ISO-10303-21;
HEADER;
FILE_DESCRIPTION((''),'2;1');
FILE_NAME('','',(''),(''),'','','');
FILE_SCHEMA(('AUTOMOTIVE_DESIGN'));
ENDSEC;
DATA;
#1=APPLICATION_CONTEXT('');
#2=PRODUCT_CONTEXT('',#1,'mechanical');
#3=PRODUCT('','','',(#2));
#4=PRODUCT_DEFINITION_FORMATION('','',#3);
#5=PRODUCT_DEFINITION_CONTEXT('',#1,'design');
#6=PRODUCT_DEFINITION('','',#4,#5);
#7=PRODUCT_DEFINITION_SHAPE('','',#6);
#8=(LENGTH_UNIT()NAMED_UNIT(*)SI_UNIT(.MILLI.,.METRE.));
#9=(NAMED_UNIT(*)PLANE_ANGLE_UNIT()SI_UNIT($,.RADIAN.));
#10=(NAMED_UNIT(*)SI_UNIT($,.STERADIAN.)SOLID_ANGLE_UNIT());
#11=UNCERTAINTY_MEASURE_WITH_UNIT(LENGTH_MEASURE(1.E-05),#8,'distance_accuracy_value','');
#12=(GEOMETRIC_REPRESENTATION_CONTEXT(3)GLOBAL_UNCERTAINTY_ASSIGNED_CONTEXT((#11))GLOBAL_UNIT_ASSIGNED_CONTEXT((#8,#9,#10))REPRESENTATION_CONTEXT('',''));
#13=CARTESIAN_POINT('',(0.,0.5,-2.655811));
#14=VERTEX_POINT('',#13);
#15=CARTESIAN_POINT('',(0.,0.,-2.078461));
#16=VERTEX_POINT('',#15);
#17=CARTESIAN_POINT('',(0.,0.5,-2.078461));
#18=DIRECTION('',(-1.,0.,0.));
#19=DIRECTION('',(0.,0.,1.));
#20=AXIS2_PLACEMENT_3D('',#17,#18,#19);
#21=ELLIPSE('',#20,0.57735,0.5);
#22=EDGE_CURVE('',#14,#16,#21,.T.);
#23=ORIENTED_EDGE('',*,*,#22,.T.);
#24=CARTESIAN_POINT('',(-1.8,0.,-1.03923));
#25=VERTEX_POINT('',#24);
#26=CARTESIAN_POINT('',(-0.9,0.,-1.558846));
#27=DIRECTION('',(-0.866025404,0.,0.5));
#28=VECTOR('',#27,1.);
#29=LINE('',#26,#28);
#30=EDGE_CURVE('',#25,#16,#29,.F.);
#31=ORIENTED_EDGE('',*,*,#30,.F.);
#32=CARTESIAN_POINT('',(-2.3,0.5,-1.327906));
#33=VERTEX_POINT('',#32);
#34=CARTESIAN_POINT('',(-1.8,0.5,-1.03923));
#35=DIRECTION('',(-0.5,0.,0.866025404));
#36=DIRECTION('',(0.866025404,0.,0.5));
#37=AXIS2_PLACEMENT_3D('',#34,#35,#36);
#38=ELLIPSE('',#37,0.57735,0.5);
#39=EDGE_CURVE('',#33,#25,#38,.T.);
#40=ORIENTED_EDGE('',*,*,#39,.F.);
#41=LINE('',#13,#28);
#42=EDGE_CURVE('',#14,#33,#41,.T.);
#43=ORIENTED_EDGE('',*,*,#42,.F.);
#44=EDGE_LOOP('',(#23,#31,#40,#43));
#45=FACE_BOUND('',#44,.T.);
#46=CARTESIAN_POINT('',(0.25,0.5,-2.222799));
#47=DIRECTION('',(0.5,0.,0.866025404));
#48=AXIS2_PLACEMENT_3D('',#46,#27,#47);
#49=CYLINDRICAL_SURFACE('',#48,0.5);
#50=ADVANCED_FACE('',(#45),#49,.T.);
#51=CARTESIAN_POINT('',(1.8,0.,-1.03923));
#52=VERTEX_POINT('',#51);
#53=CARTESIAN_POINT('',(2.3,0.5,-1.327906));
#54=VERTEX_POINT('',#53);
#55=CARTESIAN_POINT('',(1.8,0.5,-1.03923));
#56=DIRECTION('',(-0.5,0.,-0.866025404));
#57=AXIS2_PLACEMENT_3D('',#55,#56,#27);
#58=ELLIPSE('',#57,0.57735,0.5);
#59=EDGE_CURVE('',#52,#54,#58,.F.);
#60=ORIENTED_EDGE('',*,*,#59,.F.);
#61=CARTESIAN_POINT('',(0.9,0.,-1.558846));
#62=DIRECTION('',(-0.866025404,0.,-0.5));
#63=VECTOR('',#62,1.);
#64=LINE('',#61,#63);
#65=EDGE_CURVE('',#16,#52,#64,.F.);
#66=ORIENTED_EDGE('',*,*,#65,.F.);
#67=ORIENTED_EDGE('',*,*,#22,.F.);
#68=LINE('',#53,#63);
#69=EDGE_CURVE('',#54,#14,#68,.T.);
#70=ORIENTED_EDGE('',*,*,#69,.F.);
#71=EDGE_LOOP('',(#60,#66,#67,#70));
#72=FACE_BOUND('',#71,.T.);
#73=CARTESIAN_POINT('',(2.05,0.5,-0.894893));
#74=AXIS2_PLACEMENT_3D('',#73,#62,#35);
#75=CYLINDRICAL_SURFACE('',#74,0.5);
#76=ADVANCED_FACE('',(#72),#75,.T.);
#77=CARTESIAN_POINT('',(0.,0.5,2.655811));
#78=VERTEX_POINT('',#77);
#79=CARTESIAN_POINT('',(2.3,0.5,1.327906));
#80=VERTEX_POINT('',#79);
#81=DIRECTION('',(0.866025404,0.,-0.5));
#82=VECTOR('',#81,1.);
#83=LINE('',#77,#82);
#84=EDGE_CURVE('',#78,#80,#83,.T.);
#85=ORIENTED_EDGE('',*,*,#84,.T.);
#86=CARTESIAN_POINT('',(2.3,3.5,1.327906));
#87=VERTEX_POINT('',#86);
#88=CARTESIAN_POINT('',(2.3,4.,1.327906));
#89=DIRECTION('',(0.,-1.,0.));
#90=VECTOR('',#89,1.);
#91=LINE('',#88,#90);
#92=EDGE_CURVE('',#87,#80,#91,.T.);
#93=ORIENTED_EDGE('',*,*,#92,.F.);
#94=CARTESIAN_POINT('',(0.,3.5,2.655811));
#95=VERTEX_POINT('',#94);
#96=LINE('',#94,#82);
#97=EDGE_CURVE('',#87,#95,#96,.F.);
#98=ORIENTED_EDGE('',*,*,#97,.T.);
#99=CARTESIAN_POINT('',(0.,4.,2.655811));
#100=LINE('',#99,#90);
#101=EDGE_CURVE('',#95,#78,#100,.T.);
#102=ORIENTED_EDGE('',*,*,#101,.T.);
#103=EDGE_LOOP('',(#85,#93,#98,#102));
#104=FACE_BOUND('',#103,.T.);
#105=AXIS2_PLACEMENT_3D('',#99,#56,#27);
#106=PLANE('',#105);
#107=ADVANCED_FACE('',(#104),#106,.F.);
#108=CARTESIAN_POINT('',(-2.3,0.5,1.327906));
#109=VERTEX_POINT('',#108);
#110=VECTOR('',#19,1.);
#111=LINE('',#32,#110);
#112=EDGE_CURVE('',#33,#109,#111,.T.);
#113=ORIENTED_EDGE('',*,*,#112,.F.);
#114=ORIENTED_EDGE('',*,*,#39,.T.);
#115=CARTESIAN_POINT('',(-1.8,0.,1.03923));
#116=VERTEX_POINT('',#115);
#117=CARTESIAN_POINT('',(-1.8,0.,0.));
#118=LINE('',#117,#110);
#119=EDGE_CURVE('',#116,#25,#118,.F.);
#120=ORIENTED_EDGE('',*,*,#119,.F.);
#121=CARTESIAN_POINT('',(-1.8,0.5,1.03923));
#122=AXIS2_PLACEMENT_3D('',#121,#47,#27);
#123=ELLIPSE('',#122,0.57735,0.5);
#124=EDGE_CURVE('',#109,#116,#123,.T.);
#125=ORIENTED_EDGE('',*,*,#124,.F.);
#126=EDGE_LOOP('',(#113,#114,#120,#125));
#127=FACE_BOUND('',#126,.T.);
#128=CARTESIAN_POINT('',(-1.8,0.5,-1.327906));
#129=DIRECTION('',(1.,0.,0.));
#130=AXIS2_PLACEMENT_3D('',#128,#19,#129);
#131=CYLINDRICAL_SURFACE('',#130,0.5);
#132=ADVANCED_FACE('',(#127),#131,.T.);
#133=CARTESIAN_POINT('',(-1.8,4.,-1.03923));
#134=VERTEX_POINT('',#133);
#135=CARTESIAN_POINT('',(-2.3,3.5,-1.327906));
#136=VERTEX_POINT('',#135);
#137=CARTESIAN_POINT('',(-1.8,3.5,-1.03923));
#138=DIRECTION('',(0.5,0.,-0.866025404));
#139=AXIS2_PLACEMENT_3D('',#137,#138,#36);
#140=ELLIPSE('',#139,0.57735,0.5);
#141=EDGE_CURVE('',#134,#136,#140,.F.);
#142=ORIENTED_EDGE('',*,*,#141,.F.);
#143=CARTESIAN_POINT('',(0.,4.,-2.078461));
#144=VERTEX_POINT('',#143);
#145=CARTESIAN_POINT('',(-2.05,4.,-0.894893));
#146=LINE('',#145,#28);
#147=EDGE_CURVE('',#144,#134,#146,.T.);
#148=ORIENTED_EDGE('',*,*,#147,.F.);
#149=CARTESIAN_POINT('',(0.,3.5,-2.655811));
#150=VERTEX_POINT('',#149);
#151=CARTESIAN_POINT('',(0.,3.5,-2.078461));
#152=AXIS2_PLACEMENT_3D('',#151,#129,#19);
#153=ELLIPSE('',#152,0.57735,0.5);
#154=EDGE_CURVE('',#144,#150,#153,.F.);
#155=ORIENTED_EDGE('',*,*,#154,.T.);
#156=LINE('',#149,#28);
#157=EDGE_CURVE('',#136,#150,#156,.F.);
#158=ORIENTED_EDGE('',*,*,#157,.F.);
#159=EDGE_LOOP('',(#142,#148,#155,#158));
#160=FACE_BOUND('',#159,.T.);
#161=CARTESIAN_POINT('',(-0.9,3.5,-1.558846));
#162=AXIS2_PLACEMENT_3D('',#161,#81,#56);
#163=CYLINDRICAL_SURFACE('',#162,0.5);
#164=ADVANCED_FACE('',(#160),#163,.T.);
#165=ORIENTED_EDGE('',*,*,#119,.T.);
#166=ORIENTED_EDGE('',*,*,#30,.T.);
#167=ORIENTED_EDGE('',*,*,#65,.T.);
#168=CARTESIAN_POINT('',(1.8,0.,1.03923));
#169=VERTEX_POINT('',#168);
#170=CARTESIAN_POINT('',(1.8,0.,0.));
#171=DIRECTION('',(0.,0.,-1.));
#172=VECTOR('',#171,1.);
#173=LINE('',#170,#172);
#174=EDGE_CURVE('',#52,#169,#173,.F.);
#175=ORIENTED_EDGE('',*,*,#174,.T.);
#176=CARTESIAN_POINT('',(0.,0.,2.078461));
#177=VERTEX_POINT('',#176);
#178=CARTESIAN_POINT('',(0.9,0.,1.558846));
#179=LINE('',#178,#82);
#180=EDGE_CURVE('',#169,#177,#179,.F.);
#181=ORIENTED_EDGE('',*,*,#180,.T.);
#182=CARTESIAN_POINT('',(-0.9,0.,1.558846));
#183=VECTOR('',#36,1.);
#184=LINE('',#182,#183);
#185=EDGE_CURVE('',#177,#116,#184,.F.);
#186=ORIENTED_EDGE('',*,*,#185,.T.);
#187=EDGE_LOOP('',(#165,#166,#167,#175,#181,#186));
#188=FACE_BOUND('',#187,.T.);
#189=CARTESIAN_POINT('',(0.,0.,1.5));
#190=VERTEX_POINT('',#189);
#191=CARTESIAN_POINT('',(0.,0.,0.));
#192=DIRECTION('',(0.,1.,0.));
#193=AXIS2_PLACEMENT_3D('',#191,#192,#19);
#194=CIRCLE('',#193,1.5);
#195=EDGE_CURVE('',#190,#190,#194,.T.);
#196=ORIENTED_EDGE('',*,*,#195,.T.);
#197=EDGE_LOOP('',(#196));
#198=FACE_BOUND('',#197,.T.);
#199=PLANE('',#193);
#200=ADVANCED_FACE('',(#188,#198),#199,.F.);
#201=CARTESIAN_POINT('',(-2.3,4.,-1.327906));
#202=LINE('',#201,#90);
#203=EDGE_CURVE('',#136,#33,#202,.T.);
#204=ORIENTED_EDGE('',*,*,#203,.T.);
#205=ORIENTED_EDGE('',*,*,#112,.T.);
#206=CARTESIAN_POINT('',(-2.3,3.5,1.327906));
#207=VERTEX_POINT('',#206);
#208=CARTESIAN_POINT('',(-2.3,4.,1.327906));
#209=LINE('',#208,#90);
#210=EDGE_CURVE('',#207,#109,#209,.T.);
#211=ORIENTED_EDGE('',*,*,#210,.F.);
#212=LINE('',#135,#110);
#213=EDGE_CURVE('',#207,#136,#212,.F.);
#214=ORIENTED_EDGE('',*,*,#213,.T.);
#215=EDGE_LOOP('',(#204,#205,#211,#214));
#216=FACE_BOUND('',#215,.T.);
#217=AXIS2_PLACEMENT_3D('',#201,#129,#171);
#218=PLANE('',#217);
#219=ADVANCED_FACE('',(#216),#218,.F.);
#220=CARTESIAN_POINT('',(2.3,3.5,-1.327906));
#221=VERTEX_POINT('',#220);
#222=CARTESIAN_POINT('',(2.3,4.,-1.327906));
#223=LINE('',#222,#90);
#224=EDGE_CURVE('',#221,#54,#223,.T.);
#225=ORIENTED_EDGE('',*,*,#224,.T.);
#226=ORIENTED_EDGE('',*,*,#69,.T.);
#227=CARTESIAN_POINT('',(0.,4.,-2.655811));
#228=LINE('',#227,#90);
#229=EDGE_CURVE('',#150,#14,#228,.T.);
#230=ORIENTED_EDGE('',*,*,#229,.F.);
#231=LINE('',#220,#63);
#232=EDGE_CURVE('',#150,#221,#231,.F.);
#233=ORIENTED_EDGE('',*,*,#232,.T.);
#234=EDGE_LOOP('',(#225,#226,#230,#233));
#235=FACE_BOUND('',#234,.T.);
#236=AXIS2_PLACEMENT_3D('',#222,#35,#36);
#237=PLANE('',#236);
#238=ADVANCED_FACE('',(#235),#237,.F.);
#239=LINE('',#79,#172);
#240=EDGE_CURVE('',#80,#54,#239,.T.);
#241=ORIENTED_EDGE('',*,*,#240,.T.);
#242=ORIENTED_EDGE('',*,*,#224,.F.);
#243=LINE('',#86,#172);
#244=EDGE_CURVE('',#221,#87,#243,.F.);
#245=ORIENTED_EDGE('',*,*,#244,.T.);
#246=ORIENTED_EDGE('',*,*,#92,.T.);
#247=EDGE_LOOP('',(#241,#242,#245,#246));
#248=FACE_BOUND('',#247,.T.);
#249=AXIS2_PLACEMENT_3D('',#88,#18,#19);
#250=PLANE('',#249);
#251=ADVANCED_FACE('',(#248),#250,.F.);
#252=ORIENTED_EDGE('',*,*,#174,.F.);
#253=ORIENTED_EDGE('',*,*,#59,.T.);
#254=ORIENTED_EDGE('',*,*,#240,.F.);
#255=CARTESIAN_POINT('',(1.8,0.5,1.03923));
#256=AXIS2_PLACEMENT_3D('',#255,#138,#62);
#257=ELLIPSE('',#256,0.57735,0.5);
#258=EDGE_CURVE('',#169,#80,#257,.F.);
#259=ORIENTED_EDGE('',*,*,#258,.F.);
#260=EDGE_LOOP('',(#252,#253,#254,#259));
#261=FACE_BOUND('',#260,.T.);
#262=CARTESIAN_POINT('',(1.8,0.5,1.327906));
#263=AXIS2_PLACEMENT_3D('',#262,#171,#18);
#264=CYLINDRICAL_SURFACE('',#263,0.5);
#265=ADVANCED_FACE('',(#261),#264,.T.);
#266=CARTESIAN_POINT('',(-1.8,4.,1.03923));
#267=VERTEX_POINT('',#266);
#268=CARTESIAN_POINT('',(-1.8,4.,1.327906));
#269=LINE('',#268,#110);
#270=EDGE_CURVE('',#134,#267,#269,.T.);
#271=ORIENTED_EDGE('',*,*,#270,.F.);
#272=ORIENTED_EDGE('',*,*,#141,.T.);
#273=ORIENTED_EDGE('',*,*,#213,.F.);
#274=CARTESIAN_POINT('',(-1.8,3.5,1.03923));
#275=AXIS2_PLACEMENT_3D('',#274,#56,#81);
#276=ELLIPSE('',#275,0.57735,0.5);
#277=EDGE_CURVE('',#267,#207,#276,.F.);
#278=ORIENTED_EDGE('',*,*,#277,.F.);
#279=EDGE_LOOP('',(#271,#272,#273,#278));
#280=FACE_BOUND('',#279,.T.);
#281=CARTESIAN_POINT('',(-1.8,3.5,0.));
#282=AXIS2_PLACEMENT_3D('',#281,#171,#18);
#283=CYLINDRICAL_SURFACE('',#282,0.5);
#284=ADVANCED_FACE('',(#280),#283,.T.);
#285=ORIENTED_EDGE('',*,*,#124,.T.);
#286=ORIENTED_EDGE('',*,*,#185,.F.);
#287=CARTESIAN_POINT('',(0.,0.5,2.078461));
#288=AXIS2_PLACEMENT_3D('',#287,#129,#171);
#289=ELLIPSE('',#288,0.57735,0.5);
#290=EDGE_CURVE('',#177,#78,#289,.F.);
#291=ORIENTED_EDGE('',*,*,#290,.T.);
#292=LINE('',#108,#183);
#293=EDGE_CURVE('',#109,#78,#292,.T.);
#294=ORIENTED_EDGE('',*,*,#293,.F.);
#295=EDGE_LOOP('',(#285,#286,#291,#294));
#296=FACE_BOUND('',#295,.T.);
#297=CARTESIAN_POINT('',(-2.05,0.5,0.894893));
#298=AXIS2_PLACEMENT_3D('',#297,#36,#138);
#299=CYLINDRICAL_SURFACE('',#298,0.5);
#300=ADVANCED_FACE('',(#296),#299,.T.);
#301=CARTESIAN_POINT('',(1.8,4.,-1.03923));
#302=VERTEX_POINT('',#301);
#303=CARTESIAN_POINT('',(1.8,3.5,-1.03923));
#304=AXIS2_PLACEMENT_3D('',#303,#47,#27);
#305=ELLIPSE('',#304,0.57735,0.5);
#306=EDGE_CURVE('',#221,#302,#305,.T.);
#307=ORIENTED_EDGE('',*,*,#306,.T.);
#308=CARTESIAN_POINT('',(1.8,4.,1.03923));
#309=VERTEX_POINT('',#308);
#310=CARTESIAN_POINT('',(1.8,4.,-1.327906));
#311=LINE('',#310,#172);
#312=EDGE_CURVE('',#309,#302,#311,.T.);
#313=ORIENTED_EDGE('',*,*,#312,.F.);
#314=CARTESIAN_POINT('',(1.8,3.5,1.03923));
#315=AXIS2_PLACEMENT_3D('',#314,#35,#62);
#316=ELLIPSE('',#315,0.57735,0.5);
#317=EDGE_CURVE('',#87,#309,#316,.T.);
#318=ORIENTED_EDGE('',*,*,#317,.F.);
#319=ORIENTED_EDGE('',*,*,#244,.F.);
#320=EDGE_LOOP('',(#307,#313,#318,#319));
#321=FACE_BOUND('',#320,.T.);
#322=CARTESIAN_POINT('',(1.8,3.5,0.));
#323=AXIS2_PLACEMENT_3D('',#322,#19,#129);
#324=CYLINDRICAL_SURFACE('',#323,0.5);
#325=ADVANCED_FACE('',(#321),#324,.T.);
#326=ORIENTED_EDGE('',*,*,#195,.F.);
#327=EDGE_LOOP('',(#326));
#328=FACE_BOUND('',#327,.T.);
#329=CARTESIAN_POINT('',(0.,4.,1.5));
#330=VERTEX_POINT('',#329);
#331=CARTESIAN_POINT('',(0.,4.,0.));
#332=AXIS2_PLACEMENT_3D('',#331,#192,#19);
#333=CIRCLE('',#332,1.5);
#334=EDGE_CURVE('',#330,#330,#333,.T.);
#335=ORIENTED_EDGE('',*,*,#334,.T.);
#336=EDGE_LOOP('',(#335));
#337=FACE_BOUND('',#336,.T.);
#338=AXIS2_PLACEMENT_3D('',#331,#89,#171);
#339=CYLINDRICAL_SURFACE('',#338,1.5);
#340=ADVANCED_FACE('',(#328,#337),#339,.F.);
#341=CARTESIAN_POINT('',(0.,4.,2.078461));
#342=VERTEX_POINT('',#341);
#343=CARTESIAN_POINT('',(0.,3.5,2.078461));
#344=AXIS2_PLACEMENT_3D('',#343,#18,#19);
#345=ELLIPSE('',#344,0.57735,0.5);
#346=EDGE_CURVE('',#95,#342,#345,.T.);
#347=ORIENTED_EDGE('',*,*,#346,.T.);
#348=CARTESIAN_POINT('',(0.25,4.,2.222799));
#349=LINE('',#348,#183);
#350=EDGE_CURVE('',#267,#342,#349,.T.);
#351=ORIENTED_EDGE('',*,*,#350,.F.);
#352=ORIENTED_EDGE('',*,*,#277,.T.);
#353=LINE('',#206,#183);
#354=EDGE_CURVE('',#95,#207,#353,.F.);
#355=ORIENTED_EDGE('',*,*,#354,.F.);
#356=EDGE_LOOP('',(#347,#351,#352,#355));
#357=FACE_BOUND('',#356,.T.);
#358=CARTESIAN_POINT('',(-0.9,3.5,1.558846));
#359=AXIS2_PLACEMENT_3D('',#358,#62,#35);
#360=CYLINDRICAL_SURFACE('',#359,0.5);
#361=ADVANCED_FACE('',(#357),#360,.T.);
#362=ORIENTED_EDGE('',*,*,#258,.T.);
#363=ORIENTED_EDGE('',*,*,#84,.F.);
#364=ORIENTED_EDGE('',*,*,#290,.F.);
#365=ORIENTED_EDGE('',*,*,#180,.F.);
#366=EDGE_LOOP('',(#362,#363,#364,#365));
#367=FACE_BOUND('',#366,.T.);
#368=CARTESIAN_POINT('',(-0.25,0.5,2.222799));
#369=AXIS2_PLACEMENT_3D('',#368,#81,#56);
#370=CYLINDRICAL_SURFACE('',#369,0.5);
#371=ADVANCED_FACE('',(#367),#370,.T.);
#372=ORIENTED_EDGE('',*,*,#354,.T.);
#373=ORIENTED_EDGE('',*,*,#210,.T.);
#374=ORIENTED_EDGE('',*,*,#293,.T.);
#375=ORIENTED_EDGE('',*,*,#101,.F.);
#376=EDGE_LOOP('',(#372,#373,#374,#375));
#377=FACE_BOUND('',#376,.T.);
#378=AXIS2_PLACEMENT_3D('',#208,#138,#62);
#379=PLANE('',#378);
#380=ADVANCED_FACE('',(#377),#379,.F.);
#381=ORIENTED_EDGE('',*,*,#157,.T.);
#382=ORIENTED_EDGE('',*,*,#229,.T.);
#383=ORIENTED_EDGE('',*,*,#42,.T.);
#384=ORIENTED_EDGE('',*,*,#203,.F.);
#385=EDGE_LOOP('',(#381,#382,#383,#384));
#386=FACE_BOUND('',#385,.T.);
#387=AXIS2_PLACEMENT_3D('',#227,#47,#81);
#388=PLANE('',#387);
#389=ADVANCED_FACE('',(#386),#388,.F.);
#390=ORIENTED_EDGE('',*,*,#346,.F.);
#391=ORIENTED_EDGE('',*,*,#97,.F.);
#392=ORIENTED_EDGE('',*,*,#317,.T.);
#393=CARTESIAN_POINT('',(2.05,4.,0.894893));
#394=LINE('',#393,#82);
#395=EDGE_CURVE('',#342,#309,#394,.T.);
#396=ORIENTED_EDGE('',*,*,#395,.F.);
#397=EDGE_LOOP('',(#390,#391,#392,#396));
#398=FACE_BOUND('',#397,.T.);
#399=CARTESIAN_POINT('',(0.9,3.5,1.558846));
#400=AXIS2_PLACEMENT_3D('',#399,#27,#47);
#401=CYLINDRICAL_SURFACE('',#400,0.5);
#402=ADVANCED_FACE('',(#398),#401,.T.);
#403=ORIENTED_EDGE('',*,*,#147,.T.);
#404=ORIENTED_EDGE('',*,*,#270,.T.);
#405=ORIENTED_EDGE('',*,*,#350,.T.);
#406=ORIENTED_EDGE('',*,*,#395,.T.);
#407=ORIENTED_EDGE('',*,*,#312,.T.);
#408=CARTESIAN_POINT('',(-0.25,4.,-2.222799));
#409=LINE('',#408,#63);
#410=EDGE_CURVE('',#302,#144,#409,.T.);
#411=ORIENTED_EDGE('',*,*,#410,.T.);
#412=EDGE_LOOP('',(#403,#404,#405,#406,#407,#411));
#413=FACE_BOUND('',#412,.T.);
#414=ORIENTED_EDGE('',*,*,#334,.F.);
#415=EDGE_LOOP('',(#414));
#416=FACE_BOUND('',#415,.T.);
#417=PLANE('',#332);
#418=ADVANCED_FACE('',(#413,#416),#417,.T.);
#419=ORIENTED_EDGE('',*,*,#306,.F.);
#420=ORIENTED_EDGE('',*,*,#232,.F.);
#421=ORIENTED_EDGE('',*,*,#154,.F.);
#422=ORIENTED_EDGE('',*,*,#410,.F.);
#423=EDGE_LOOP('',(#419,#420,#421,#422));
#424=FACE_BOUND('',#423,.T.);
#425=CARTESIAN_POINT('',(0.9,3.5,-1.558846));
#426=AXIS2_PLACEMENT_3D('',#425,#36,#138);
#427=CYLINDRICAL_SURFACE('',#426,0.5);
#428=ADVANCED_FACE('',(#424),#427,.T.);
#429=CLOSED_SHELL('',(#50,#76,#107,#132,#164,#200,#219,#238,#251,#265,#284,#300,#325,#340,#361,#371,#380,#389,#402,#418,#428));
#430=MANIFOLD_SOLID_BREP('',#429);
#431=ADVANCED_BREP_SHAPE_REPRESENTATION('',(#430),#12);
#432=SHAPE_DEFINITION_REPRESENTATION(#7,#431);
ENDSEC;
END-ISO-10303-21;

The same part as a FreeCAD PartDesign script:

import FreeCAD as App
import Part
import Sketcher
Q = App.Units.Quantity


def edges_at(feature, points):
    """Names of the edges that pass closest to the given points."""
    edges = feature.Shape.Edges
    near = lambda p: min(range(len(edges)), key=lambda i: edges[i].distToShape(Part.Vertex(*p))[0])
    return sorted({f"Edge{near(p) + 1}" for p in points})


def add_polygon(sketch, points):
    """Adds a closed chain of lines whose ends are joined by coincident constraints."""
    first, n = sketch.GeometryCount, len(points)
    for a, b in zip(points, points[1:] + points[:1]):
        sketch.addGeometry(Part.LineSegment(App.Vector(*a, 0), App.Vector(*b, 0)), False)
    for i in range(n):
        sketch.addConstraint(Sketcher.Constraint("Coincident", first + i, 2, first + (i + 1) % n, 1))

doc = App.newDocument("Part")
body = doc.addObject("PartDesign::Body", "Body")

sketch1 = body.newObject("Sketcher::SketchObject", "Sketch")
sketch1.AttachmentSupport = (doc.getObject("XZ_Plane"), [""])
sketch1.MapMode = "FlatFace"
add_polygon(sketch1, [(2.3, 1.3), (2.3, -1.3), (0, -2.7), (-2.3, -1.3), (-2.3, 1.3), (0, 2.7)])
sketch1.addGeometry(Part.Circle(App.Vector(0, 0, 0), App.Vector(0, 0, 1), 1.5), False)
sketch1.addConstraint([
    Sketcher.Constraint("Vertical", 0),
    Sketcher.Constraint("Vertical", 3),
    Sketcher.Constraint("Coincident", 6, 3, -1, 1),
    Sketcher.Constraint("Symmetric", 0, 2, 3, 2, -1, 1),
    Sketcher.Constraint("Symmetric", 1, 2, 4, 2, -1, 1),
    Sketcher.Constraint("PointOnObject", 1, 2, -2),
    Sketcher.Constraint("Parallel", 2, 5),
    Sketcher.Constraint("Horizontal", 0, 2, 2, 2),
    Sketcher.Constraint("Diameter", 6, 3.0),
    Sketcher.Constraint("Angle", 1, Q("-150 deg")),
    Sketcher.Constraint("DistanceX", -1, 1, 0, 2, 2.3),
    Sketcher.Constraint("DistanceY", 0, 2, 0, 1, 2.655811),
])
pad1 = body.newObject("PartDesign::Pad", "Pad")
pad1.Profile = sketch1
pad1.Length = 4
pad1.Reversed = True
doc.recompute()

fillet = body.newObject("PartDesign::Fillet", "Fillet")
fillet.Base = (pad1, edges_at(pad1, [
    (1.15, 4, -1.992),
    (-1.15, 4, -1.992),
    (-2.3, 4, 0),
    (-1.15, 4, 1.992),
    (1.15, 4, 1.992),
    (-1.15, 0, 1.992),
    (-2.3, 0, 0),
    (-1.15, 0, -1.992),
    (1.15, 0, -1.992),
    (2.3, 0, 0),
    (1.15, 0, 1.992),
    (2.3, 4, 0),
]))
fillet.Radius = 0.5

doc.recompute()
